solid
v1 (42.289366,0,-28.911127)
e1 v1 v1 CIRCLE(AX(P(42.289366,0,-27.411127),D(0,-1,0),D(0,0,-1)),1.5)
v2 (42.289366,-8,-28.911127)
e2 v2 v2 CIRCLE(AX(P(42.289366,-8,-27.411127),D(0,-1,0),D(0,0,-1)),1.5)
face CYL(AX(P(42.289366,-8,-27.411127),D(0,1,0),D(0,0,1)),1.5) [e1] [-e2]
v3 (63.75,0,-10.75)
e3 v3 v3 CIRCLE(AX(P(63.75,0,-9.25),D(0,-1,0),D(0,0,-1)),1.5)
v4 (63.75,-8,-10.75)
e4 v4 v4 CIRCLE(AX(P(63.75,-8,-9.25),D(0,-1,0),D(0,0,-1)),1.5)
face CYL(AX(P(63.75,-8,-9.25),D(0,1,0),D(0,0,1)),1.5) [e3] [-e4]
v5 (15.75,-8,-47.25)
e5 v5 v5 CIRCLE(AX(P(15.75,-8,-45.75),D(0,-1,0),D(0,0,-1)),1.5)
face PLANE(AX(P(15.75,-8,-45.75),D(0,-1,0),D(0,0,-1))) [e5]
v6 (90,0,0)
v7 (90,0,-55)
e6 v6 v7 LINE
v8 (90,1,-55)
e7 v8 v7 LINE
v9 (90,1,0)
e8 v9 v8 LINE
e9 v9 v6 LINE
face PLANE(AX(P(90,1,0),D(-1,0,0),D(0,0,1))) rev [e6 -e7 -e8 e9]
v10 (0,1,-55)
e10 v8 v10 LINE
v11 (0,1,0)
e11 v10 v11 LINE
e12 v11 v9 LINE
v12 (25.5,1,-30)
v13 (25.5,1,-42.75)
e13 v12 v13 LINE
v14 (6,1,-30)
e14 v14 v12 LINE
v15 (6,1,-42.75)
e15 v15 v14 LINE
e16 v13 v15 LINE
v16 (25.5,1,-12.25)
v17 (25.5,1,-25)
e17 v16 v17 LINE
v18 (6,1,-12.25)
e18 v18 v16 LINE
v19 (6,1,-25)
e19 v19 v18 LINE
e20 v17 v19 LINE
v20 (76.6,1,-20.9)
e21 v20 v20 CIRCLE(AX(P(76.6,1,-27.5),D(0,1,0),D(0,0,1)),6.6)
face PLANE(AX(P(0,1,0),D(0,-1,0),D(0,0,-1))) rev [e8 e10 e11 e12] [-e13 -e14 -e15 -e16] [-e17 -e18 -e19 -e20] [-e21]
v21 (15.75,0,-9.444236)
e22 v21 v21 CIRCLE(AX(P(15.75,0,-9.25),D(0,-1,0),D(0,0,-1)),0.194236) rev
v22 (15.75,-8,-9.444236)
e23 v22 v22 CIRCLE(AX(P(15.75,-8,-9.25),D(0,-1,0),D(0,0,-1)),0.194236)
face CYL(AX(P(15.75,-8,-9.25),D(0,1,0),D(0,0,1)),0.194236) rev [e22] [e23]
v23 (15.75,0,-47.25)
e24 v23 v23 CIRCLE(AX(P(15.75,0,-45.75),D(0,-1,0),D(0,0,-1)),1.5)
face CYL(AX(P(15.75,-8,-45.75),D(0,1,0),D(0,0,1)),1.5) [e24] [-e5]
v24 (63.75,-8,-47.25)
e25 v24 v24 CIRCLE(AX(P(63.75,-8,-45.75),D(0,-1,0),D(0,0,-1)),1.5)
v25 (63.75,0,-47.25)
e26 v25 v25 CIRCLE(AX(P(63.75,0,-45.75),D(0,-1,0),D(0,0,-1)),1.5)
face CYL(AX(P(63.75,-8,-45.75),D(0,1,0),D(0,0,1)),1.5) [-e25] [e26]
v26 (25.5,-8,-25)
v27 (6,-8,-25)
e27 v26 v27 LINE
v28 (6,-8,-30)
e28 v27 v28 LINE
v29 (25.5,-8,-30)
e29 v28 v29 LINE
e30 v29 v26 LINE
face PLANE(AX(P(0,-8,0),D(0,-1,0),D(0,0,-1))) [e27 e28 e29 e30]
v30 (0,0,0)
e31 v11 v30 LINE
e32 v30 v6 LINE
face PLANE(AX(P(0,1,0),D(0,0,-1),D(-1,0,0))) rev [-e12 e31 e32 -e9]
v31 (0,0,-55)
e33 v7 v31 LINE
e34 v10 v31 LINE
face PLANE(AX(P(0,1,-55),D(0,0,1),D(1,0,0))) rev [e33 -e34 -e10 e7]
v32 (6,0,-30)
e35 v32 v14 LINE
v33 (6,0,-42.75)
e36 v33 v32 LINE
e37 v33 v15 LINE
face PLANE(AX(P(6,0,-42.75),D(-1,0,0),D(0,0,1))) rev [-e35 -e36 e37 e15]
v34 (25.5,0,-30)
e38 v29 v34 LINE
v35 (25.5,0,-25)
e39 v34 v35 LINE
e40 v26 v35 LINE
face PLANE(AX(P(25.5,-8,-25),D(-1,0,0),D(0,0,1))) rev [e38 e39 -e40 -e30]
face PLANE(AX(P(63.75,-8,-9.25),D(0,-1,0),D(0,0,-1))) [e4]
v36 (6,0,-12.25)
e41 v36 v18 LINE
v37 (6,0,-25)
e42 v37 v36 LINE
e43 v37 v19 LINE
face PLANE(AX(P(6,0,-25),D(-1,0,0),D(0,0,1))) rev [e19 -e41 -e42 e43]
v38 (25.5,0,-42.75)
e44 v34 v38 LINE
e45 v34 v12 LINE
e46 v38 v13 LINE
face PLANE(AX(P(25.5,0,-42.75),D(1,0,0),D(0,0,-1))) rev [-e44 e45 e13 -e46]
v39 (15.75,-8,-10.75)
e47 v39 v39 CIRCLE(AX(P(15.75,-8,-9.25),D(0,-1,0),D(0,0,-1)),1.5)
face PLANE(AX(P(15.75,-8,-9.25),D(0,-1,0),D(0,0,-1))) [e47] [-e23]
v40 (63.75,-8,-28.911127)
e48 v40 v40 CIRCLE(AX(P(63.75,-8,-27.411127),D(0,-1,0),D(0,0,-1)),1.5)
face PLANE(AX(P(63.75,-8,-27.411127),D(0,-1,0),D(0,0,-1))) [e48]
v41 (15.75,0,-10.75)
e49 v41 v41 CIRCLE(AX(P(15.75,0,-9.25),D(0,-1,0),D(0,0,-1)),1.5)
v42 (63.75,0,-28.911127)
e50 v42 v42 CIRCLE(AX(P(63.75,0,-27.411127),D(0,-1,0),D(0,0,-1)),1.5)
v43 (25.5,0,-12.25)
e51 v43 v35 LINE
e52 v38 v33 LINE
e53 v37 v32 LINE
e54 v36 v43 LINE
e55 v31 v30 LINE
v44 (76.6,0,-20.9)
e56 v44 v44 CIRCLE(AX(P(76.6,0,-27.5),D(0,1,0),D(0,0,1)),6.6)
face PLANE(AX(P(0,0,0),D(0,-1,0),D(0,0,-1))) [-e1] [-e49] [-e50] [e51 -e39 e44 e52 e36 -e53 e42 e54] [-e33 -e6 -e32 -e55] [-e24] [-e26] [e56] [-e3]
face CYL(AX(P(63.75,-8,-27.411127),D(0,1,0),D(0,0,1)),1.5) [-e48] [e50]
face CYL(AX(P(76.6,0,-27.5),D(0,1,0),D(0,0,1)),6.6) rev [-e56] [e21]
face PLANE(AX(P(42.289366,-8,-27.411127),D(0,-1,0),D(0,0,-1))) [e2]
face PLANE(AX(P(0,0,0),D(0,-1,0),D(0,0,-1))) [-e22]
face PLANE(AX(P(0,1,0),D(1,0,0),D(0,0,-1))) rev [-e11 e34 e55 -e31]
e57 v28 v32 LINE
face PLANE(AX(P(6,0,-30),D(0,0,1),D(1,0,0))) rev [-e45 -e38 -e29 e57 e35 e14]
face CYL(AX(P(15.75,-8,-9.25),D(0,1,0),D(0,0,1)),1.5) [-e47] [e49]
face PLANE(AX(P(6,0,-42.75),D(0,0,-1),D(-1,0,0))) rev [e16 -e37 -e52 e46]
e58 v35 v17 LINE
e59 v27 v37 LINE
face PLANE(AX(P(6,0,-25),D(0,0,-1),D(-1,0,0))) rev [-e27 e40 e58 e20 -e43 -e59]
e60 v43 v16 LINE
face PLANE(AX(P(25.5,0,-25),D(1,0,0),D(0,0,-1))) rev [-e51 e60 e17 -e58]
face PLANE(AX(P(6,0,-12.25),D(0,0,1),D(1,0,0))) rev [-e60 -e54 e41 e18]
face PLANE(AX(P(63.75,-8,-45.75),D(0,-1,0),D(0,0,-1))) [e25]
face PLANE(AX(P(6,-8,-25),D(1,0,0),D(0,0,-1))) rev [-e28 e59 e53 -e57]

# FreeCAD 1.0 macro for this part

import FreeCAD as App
import Part
import Sketcher

V = App.Vector
Q = App.Units.Quantity

doc = App.newDocument("Part")
body = doc.addObject("PartDesign::Body", "Body")

sketch1 = body.newObject("Sketcher::SketchObject", "Sketch")
sketch1.AttachmentSupport = (doc.getObject("XZ_Plane"), [""])
sketch1.MapMode = "FlatFace"
sketch1.addGeometry([
    Part.LineSegment(V(0, -55, 0), V(0, 0, 0)),
    Part.LineSegment(V(0, 0, 0), V(90, 0, 0)),
    Part.LineSegment(V(90, 0, 0), V(90, -55, 0)),
    Part.LineSegment(V(90, -55, 0), V(0, -55, 0)),
], False)
sketch1.addConstraint([
    Sketcher.Constraint("Coincident", 0, 2, 1, 1),
    Sketcher.Constraint("Coincident", 1, 2, 2, 1),
    Sketcher.Constraint("Coincident", 2, 2, 3, 1),
    Sketcher.Constraint("Coincident", 3, 2, 0, 1),
    Sketcher.Constraint("Vertical", 0),
    Sketcher.Constraint("Horizontal", 1),
    Sketcher.Constraint("Vertical", 2),
    Sketcher.Constraint("Horizontal", 3),
    Sketcher.Constraint("Coincident", 0, 2, -1, 1),
    Sketcher.Constraint("DistanceX", 1, 1, 1, 2, Q("90 mm")),
    Sketcher.Constraint("DistanceY", 0, 1, 0, 2, Q("55 mm")),
])
pad1 = body.newObject("PartDesign::Pad", "Pad")
pad1.Profile = sketch1
pad1.Length = 1
pad1.Reversed = True

sketch2 = body.newObject("Sketcher::SketchObject", "Sketch001")
sketch2.AttachmentSupport = (doc.getObject("XZ_Plane"), [""])
sketch2.MapMode = "FlatFace"
sketch2.AttachmentOffset = App.Placement(V(0, 0, -1), App.Rotation())
sketch2.addGeometry([
    Part.Circle(V(77, -28, 0), V(0, 0, 1), 7),
    Part.LineSegment(V(6, -43, 0), V(6, -30, 0)),
    Part.LineSegment(V(6, -30, 0), V(26, -30, 0)),
    Part.LineSegment(V(26, -30, 0), V(26, -43, 0)),
    Part.LineSegment(V(26, -43, 0), V(6, -43, 0)),
    Part.LineSegment(V(6, -25, 0), V(6, -12, 0)),
    Part.LineSegment(V(6, -12, 0), V(26, -12, 0)),
    Part.LineSegment(V(26, -12, 0), V(26, -25, 0)),
    Part.LineSegment(V(26, -25, 0), V(6, -25, 0)),
], False)
sketch2.addConstraint([
    Sketcher.Constraint("Coincident", 1, 2, 2, 1),
    Sketcher.Constraint("Coincident", 2, 2, 3, 1),
    Sketcher.Constraint("Coincident", 3, 2, 4, 1),
    Sketcher.Constraint("Coincident", 4, 2, 1, 1),
    Sketcher.Constraint("Coincident", 5, 2, 6, 1),
    Sketcher.Constraint("Coincident", 6, 2, 7, 1),
    Sketcher.Constraint("Coincident", 7, 2, 8, 1),
    Sketcher.Constraint("Coincident", 8, 2, 5, 1),
    Sketcher.Constraint("Vertical", 1),
    Sketcher.Constraint("Horizontal", 2),
    Sketcher.Constraint("Vertical", 3),
    Sketcher.Constraint("Horizontal", 4),
    Sketcher.Constraint("Vertical", 5),
    Sketcher.Constraint("Horizontal", 6),
    Sketcher.Constraint("Vertical", 7),
    Sketcher.Constraint("Horizontal", 8),
    Sketcher.Constraint("Vertical", 4, 2, 5, 2),
    Sketcher.Constraint("Vertical", 3, 2, 6, 2),
    Sketcher.Constraint("Equal", 3, 5),
    Sketcher.Constraint("Diameter", 0, Q("13.2 mm")),
    Sketcher.Constraint("DistanceX", 2, 1, 2, 2, Q("19.5 mm")),
    Sketcher.Constraint("DistanceX", -1, 1, 1, 2, Q("6 mm")),
    Sketcher.Constraint("DistanceY", 1, 2, -1, 1, Q("30 mm")),
    Sketcher.Constraint("DistanceY", 7, 2, -1, 1, Q("25 mm")),
    Sketcher.Constraint("DistanceY", 1, 1, 1, 2, Q("12.75 mm")),
    Sketcher.Constraint("DistanceX", -1, 1, 0, 3, Q("76.6 mm")),
    Sketcher.Constraint("DistanceY", 0, 3, -1, 1, Q("27.5 mm")),
])
pocket1 = body.newObject("PartDesign::Pocket", "Pocket")
pocket1.Profile = sketch2
pocket1.Type = "ThroughAll"
pocket1.Reversed = True

sketch3 = body.newObject("Sketcher::SketchObject", "Sketch002")
sketch3.AttachmentSupport = (doc.getObject("XZ_Plane"), [""])
sketch3.MapMode = "FlatFace"
sketch3.addGeometry([
    Part.Circle(V(15.75, -9.25, 0), V(0, 0, 1), 1.5),
    Part.Circle(V(15.75, -9.25, 0), V(0, 0, 1), 0.19),
    Part.Circle(V(15.75, -45.75, 0), V(0, 0, 1), 1.5),
    Part.Circle(V(63.75, -9.25, 0), V(0, 0, 1), 1.5),
    Part.Circle(V(63.75, -45.75, 0), V(0, 0, 1), 1.5),
    Part.Circle(V(63.75, -27.41, 0), V(0, 0, 1), 1.5),
    Part.Circle(V(42.29, -27.41, 0), V(0, 0, 1), 1.5),
    Part.LineSegment(V(6, -25, 0), V(6, -30, 0)),
    Part.LineSegment(V(6, -30, 0), V(25.5, -30, 0)),
    Part.LineSegment(V(25.5, -30, 0), V(25.5, -25, 0)),
    Part.LineSegment(V(25.5, -25, 0), V(6, -25, 0)),
], False)
sketch3.addConstraint([
    Sketcher.Constraint("Coincident", 7, 2, 8, 1),
    Sketcher.Constraint("Coincident", 8, 2, 9, 1),
    Sketcher.Constraint("Coincident", 9, 2, 10, 1),
    Sketcher.Constraint("Coincident", 10, 2, 7, 1),
    Sketcher.Constraint("Vertical", 7),
    Sketcher.Constraint("Horizontal", 8),
    Sketcher.Constraint("Vertical", 9),
    Sketcher.Constraint("Horizontal", 10),
    Sketcher.Constraint("Coincident", 1, 3, 0, 3),
    Sketcher.Constraint("Equal", 0, 2),
    Sketcher.Constraint("Equal", 2, 3),
    Sketcher.Constraint("Equal", 3, 4),
    Sketcher.Constraint("Equal", 4, 5),
    Sketcher.Constraint("Equal", 5, 6),
    Sketcher.Constraint("Horizontal", 1, 3, 3, 3),
    Sketcher.Constraint("Horizontal", 2, 3, 4, 3),
    Sketcher.Constraint("Horizontal", 5, 3, 6, 3),
    Sketcher.Constraint("Vertical", 1, 3, 2, 3),
    Sketcher.Constraint("Vertical", 3, 3, 4, 3),
    Sketcher.Constraint("Vertical", 4, 3, 5, 3),
    Sketcher.Constraint("Diameter", 0, Q("3 mm")),
    Sketcher.Constraint("DistanceY", 7, 2, 7, 1, Q("5 mm")),
    Sketcher.Constraint("DistanceX", 8, 1, 8, 2, Q("19.5 mm")),
    Sketcher.Constraint("DistanceX", -1, 1, 7, 2, Q("6 mm")),
    Sketcher.Constraint("DistanceY", 7, 2, -1, 1, Q("30 mm")),
    Sketcher.Constraint("DistanceX", 0, 3, 3, 3, Q("48 mm")),
    Sketcher.Constraint("DistanceY", 2, 3, 0, 3, Q("36.5 mm")),
    Sketcher.Constraint("Diameter", 1, Q("0.388471 mm")),
    Sketcher.Constraint("DistanceX", -1, 1, 0, 3, Q("15.75 mm")),
    Sketcher.Constraint("DistanceY", 0, 3, -1, 1, Q("9.25 mm")),
    Sketcher.Constraint("DistanceY", 5, 3, -1, 1, Q("27.411127 mm")),
    Sketcher.Constraint("DistanceX", -1, 1, 6, 3, Q("42.289366 mm")),
])
pad2 = body.newObject("PartDesign::Pad", "Pad001")
pad2.Profile = sketch3
pad2.Length = 8

doc.recompute()
